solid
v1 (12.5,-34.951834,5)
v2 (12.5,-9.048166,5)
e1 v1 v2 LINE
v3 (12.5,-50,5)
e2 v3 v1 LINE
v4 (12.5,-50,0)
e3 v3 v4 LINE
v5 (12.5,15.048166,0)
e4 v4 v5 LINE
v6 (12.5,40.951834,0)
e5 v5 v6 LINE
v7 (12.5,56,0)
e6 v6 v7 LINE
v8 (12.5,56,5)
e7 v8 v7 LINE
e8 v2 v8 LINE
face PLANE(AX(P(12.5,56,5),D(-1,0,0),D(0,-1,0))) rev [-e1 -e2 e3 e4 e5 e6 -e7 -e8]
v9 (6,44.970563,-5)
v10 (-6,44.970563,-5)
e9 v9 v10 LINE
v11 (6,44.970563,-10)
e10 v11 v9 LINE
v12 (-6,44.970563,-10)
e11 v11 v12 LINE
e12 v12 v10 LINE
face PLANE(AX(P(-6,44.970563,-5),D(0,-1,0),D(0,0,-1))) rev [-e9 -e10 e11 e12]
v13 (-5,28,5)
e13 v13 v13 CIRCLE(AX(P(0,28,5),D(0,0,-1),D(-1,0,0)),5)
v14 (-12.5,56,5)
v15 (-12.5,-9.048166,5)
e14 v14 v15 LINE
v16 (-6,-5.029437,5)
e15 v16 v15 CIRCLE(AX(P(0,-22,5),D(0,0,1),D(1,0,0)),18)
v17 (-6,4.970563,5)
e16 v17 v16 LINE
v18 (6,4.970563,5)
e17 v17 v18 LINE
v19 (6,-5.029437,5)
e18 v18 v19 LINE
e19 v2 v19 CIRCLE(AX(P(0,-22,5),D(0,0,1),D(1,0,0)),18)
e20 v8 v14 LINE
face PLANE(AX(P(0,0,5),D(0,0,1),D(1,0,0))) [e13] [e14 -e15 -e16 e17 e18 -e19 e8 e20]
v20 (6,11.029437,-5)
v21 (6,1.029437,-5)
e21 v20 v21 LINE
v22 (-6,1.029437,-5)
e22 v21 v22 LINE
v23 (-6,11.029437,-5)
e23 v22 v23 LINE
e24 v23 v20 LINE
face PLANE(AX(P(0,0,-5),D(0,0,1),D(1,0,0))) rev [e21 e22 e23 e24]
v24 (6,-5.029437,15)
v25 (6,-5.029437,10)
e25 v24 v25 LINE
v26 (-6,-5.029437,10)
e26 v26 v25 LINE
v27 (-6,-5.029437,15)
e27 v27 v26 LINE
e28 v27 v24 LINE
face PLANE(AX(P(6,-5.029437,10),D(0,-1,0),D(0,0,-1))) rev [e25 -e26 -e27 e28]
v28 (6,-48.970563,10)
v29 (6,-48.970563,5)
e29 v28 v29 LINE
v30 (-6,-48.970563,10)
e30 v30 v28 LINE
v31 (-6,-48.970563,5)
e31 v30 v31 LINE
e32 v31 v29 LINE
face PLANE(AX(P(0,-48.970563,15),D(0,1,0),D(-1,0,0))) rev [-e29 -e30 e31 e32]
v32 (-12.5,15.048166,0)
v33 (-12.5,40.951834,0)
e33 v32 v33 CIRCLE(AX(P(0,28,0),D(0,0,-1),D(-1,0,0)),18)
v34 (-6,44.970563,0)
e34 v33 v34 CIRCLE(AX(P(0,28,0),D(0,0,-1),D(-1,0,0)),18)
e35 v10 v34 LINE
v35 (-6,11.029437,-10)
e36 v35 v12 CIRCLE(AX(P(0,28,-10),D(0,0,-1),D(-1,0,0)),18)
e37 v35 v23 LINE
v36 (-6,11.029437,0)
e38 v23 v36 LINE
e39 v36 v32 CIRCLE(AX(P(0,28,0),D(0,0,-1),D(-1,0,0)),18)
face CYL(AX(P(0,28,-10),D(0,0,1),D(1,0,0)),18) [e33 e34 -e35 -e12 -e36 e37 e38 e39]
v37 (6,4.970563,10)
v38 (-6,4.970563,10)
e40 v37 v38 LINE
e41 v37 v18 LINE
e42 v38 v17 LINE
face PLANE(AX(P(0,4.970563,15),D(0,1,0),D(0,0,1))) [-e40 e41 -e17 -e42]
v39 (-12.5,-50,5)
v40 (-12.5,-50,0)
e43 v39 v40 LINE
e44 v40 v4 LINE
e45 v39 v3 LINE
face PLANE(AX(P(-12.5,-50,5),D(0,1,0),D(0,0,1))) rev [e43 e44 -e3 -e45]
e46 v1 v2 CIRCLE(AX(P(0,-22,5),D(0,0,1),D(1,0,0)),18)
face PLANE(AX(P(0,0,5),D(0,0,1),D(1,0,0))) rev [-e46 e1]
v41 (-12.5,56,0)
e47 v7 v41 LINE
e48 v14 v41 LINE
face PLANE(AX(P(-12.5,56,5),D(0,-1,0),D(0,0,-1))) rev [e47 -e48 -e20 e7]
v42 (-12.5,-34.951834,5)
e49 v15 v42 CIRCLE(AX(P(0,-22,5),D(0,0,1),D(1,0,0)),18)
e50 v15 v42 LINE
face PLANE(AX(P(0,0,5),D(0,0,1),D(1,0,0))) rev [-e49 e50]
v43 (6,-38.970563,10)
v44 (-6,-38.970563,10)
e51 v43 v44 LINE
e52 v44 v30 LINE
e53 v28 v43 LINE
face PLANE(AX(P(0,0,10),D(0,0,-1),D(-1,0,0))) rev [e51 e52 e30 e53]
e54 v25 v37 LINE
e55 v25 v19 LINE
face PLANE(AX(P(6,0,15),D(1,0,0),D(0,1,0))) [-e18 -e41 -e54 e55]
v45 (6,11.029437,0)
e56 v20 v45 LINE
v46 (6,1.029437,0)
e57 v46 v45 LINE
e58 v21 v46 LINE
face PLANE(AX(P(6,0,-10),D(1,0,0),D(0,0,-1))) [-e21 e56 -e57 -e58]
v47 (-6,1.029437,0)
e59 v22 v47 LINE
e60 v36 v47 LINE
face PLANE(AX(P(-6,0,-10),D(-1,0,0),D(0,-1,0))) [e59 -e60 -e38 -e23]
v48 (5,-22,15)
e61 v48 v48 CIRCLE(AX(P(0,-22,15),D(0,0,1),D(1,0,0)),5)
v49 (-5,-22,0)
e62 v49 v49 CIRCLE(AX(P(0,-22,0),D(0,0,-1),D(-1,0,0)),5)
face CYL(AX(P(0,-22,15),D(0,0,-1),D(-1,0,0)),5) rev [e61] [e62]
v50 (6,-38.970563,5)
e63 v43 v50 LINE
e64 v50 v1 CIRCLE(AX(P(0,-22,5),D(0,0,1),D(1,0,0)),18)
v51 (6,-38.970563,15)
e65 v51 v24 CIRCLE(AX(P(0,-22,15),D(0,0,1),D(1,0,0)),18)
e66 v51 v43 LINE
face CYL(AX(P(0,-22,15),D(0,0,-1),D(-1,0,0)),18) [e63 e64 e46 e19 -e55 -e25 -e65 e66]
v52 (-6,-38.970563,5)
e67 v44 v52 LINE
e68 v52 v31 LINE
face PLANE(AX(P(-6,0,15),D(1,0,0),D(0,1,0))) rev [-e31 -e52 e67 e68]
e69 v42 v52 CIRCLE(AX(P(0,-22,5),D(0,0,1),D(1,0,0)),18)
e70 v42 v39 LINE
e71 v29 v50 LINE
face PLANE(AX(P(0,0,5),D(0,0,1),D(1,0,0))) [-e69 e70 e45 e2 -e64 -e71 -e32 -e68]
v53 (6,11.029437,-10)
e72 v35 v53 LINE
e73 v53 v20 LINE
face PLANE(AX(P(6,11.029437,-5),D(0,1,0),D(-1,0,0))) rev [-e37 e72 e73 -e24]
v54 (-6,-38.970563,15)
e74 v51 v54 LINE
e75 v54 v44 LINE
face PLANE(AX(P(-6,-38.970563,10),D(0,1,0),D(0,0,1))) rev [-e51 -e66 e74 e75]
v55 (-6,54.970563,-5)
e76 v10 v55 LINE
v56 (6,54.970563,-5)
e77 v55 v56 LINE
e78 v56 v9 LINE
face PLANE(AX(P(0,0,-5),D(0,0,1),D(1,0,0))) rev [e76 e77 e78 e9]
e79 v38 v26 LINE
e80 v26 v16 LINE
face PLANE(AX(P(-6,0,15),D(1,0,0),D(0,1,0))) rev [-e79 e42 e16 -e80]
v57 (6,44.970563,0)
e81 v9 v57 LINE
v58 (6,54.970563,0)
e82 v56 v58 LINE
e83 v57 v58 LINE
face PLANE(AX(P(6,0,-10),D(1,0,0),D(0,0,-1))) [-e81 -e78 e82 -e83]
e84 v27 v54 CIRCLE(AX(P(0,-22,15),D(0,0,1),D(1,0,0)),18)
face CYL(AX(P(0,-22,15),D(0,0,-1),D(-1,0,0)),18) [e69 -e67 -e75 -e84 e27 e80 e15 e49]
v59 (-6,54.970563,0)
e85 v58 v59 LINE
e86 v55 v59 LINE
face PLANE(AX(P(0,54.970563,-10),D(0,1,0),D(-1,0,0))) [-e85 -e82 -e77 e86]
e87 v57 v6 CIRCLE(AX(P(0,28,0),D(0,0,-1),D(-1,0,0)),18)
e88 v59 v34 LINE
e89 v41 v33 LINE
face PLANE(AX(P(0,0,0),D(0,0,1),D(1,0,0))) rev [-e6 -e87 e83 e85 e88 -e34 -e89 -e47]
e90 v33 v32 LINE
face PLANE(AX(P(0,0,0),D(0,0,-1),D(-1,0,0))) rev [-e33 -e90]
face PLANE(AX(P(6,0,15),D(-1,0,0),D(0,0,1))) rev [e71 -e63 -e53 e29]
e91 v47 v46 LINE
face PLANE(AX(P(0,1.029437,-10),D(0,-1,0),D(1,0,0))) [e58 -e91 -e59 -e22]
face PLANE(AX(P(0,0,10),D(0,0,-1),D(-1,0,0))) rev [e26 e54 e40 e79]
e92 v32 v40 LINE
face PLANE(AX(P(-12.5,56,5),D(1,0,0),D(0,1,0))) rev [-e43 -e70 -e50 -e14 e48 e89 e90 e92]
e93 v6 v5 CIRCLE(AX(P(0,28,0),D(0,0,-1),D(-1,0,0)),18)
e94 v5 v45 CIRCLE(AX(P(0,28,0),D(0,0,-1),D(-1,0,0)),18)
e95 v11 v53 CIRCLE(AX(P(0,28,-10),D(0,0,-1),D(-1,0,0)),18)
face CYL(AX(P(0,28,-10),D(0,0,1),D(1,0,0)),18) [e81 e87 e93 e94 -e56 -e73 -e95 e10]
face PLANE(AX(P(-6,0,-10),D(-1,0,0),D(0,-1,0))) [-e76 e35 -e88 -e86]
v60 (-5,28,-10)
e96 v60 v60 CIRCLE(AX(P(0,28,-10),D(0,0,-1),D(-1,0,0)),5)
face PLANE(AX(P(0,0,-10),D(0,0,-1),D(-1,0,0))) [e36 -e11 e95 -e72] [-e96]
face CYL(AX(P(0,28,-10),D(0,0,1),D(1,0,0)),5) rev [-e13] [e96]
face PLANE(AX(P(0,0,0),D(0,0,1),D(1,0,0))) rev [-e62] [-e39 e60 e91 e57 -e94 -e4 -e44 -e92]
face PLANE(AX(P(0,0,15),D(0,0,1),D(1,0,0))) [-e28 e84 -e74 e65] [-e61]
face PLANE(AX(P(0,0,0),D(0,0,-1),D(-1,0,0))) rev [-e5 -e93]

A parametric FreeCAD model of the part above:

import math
import FreeCAD as App
import Part
import Sketcher
from FreeCAD import Vector


def add_polygon(sketch, points):
    """Adds a closed chain of lines whose ends are joined by coincident constraints."""
    first, n = sketch.GeometryCount, len(points)
    for a, b in zip(points, points[1:] + points[:1]):
        sketch.addGeometry(Part.LineSegment(App.Vector(*a, 0), App.Vector(*b, 0)), False)
    for i in range(n):
        sketch.addConstraint(Sketcher.Constraint("Coincident", first + i, 2, first + (i + 1) % n, 1))

doc = App.newDocument("Part")
body = doc.addObject("PartDesign::Body", "Body")

sketch1 = doc.addObject("Sketcher::SketchObject", "Sketch")
body.addObject(sketch1)
sketch1.AttachmentSupport = (doc.XY_Plane, [""])
sketch1.MapMode = "FlatFace"
add_polygon(sketch1, [(-12, 56), (-12, -50), (12, -50), (12, 56)])
sketch1.addConstraint([
    Sketcher.Constraint("Vertical", 0),
    Sketcher.Constraint("Horizontal", 1),
    Sketcher.Constraint("Vertical", 2),
    Sketcher.Constraint("Horizontal", 3),
    Sketcher.Constraint("DistanceX", 1, 1, 1, 2, 25.0),
    Sketcher.Constraint("DistanceY", 0, 2, 0, 1, 106.0),
    Sketcher.Constraint("DistanceY", 0, 2, -1, 1, 50.0),
    Sketcher.Constraint("DistanceX", 0, 2, -1, 1, 12.5),
])
pad1 = doc.addObject("PartDesign::Pad", "Pad")
body.addObject(pad1)
pad1.Profile = sketch1
pad1.Length = 5

sketch2 = doc.addObject("Sketcher::SketchObject", "Sketch001")
body.addObject(sketch2)
sketch2.AttachmentSupport = (doc.XY_Plane, [""])
sketch2.MapMode = "FlatFace"
sketch2.AttachmentOffset = App.Placement(Vector(0, 0, 5), App.Rotation())
sketch2.addGeometry([
    Part.LineSegment(Vector(6, 5, 0), Vector(-6, 5, 0)),
    Part.LineSegment(Vector(-6, 5, 0), Vector(-6, -5, 0)),
    Part.ArcOfCircle(Part.Circle(Vector(0, -22, 0), Vector(0, 0, 1), 18), math.radians(109), math.radians(251)),
    Part.LineSegment(Vector(-6, -39, 0), Vector(-6, -49, 0)),
    Part.LineSegment(Vector(-6, -49, 0), Vector(6, -49, 0)),
    Part.LineSegment(Vector(6, -49, 0), Vector(6, -39, 0)),
    Part.ArcOfCircle(Part.Circle(Vector(0, -22, 0), Vector(0, 0, 1), 18), math.radians(-71), math.radians(71)),
    Part.LineSegment(Vector(6, -5, 0), Vector(6, 5, 0)),
    Part.Circle(Vector(0, -22, 0), Vector(0, 0, 1), 5),
], False)
sketch2.addConstraint([
    Sketcher.Constraint("Coincident", 0, 2, 1, 1),
    Sketcher.Constraint("Coincident", 1, 2, 2, 1),
    Sketcher.Constraint("Coincident", 2, 2, 3, 1),
    Sketcher.Constraint("Coincident", 3, 2, 4, 1),
    Sketcher.Constraint("Coincident", 4, 2, 5, 1),
    Sketcher.Constraint("Coincident", 5, 2, 6, 1),
    Sketcher.Constraint("Coincident", 6, 2, 7, 1),
    Sketcher.Constraint("Coincident", 7, 2, 0, 1),
    Sketcher.Constraint("Horizontal", 0),
    Sketcher.Constraint("Vertical", 1),
    Sketcher.Constraint("Vertical", 3),
    Sketcher.Constraint("Horizontal", 4),
    Sketcher.Constraint("Vertical", 5),
    Sketcher.Constraint("Vertical", 7),
    Sketcher.Constraint("Coincident", 6, 3, 2, 3),
    Sketcher.Constraint("Coincident", 8, 3, 2, 3),
    Sketcher.Constraint("Equal", 2, 6),
    Sketcher.Constraint("Symmetric", 2, 2, 5, 2, -2),
    Sketcher.Constraint("Horizontal", 1, 2, 6, 2),
    Sketcher.Constraint("Vertical", 1, 2, 2, 2),
    Sketcher.Constraint("Equal", 1, 3),
    Sketcher.Constraint("Diameter", 8, 10.0),
    Sketcher.Constraint("Radius", 2, 18.0),
    Sketcher.Constraint("DistanceX", 0, 2, 0, 1, 12.0),
    Sketcher.Constraint("DistanceY", 1, 2, 1, 1, 10.0),
    Sketcher.Constraint("DistanceY", 2, 3, -1, 1, 22.0),
])
pad2 = doc.addObject("PartDesign::Pad", "Pad001")
body.addObject(pad2)
pad2.Profile = sketch2
pad2.Length = 10

sketch3 = doc.addObject("Sketcher::SketchObject", "Sketch002")
body.addObject(sketch3)
sketch3.AttachmentSupport = (doc.XY_Plane, [""])
sketch3.MapMode = "FlatFace"
sketch3.addGeometry([
    Part.LineSegment(Vector(-6, 55, 0), Vector(6, 55, 0)),
    Part.LineSegment(Vector(6, 55, 0), Vector(6, 45, 0)),
    Part.ArcOfCircle(Part.Circle(Vector(0, 28, 0), Vector(0, 0, 1), 18), math.radians(-71), math.radians(71)),
    Part.LineSegment(Vector(6, 11, 0), Vector(6, 1, 0)),
    Part.LineSegment(Vector(6, 1, 0), Vector(-6, 1, 0)),
    Part.LineSegment(Vector(-6, 1, 0), Vector(-6, 11, 0)),
    Part.ArcOfCircle(Part.Circle(Vector(0, 28, 0), Vector(0, 0, 1), 18), math.radians(109), math.radians(251)),
    Part.LineSegment(Vector(-6, 45, 0), Vector(-6, 55, 0)),
    Part.Circle(Vector(0, 28, 0), Vector(0, 0, 1), 5),
], False)
sketch3.addConstraint([
    Sketcher.Constraint("Coincident", 0, 2, 1, 1),
    Sketcher.Constraint("Coincident", 1, 2, 2, 2),
    Sketcher.Constraint("Coincident", 2, 1, 3, 1),
    Sketcher.Constraint("Coincident", 3, 2, 4, 1),
    Sketcher.Constraint("Coincident", 4, 2, 5, 1),
    Sketcher.Constraint("Coincident", 5, 2, 6, 2),
    Sketcher.Constraint("Coincident", 6, 1, 7, 1),
    Sketcher.Constraint("Coincident", 7, 2, 0, 1),
    Sketcher.Constraint("Horizontal", 0),
    Sketcher.Constraint("Vertical", 1),
    Sketcher.Constraint("Vertical", 3),
    Sketcher.Constraint("Horizontal", 4),
    Sketcher.Constraint("Vertical", 5),
    Sketcher.Constraint("Vertical", 7),
    Sketcher.Constraint("Coincident", 6, 3, 2, 3),
    Sketcher.Constraint("Coincident", 8, 3, 2, 3),
    Sketcher.Constraint("Equal", 2, 6),
    Sketcher.Constraint("Symmetric", 2, 1, 5, 2, -2),
    Sketcher.Constraint("Horizontal", 1, 2, 6, 1),
    Sketcher.Constraint("Vertical", 1, 2, 2, 1),
    Sketcher.Constraint("Equal", 1, 3),
    Sketcher.Constraint("Diameter", 8, 10.0),
    Sketcher.Constraint("Radius", 2, 18.0),
    Sketcher.Constraint("DistanceX", 0, 1, 0, 2, 12.0),
    Sketcher.Constraint("DistanceY", 1, 2, 1, 1, 10.0),
    Sketcher.Constraint("DistanceY", -1, 1, 2, 3, 28.0),
])
pad3 = doc.addObject("PartDesign::Pad", "Pad002")
body.addObject(pad3)
pad3.Profile = sketch3
pad3.Length = 10
pad3.Reversed = True

sketch4 = doc.addObject("Sketcher::SketchObject", "Sketch003")
body.addObject(sketch4)
sketch4.AttachmentSupport = (doc.XY_Plane, [""])
sketch4.MapMode = "FlatFace"
sketch4.addGeometry([
    Part.Circle(Vector(0, 28, 0), Vector(0, 0, 1), 5),
    Part.Circle(Vector(0, -22, 0), Vector(0, 0, 1), 5),
], False)
sketch4.addConstraint([
    Sketcher.Constraint("Equal", 0, 1),
    Sketcher.Constraint("PointOnObject", 0, 3, -2),
    Sketcher.Constraint("PointOnObject", 1, 3, -2),
    Sketcher.Constraint("Diameter", 0, 10.0),
    Sketcher.Constraint("DistanceY", -1, 1, 0, 3, 28.0),
    Sketcher.Constraint("DistanceY", 1, 3, -1, 1, 22.0),
])
pocket1 = doc.addObject("PartDesign::Pocket", "Pocket")
body.addObject(pocket1)
pocket1.Profile = sketch4
pocket1.Length = 5
pocket1.Reversed = True

sketch5 = doc.addObject("Sketcher::SketchObject", "Sketch004")
body.addObject(sketch5)
sketch5.AttachmentSupport = (doc.XY_Plane, [""])
sketch5.MapMode = "FlatFace"
sketch5.AttachmentOffset = App.Placement(Vector(0, 0, -10), App.Rotation())
add_polygon(sketch5, [(6, 55), (6, 45), (-6, 45), (-6, 55)])
add_polygon(sketch5, [(6, 11), (6, 1), (-6, 1), (-6, 11)])
sketch5.addConstraint([
    Sketcher.Constraint("Vertical", 0),
    Sketcher.Constraint("Horizontal", 1),
    Sketcher.Constraint("Vertical", 2),
    Sketcher.Constraint("Horizontal", 3),
    Sketcher.Constraint("Vertical", 4),
    Sketcher.Constraint("Horizontal", 5),
    Sketcher.Constraint("Vertical", 6),
    Sketcher.Constraint("Horizontal", 7),
    Sketcher.Constraint("Vertical", 3, 2, 4, 2),
    Sketcher.Constraint("Vertical", 2, 2, 5, 2),
    Sketcher.Constraint("Equal", 2, 4),
    Sketcher.Constraint("DistanceX", 1, 2, 1, 1, 12.0),
    Sketcher.Constraint("DistanceY", 0, 2, 0, 1, 10.0),
    Sketcher.Constraint("DistanceX", -1, 1, 0, 2, 6.0),
    Sketcher.Constraint("DistanceY", -1, 1, 0, 2, 44.970563),
    Sketcher.Constraint("DistanceY", -1, 1, 4, 2, 1.029437),
])
pocket2 = doc.addObject("PartDesign::Pocket", "Pocket001")
body.addObject(pocket2)
pocket2.Profile = sketch5
pocket2.Length = 5
pocket2.Reversed = True

sketch6 = doc.addObject("Sketcher::SketchObject", "Sketch005")
body.addObject(sketch6)
sketch6.AttachmentSupport = (doc.XY_Plane, [""])
sketch6.MapMode = "FlatFace"
sketch6.AttachmentOffset = App.Placement(Vector(0, 0, 15), App.Rotation())
add_polygon(sketch6, [(-6, 5), (-6, -5), (6, -5), (6, 5)])
add_polygon(sketch6, [(-6, -39), (-6, -49), (6, -49), (6, -39)])
sketch6.addConstraint([
    Sketcher.Constraint("Vertical", 0),
    Sketcher.Constraint("Horizontal", 1),
    Sketcher.Constraint("Vertical", 2),
    Sketcher.Constraint("Horizontal", 3),
    Sketcher.Constraint("Vertical", 4),
    Sketcher.Constraint("Horizontal", 5),
    Sketcher.Constraint("Vertical", 6),
    Sketcher.Constraint("Horizontal", 7),
    Sketcher.Constraint("Vertical", 3, 2, 4, 2),
    Sketcher.Constraint("Vertical", 2, 2, 5, 2),
    Sketcher.Constraint("Equal", 2, 4),
    Sketcher.Constraint("DistanceX", 1, 1, 1, 2, 12.0),
    Sketcher.Constraint("DistanceY", 0, 2, 0, 1, 10.0),
    Sketcher.Constraint("DistanceX", 0, 2, -1, 1, 6.0),
    Sketcher.Constraint("DistanceY", 0, 2, -1, 1, 5.029437),
    Sketcher.Constraint("DistanceY", 4, 2, -1, 1, 48.970563),
])
pocket3 = doc.addObject("PartDesign::Pocket", "Pocket002")
body.addObject(pocket3)
pocket3.Profile = sketch6
pocket3.Length = 5

doc.recompute()
